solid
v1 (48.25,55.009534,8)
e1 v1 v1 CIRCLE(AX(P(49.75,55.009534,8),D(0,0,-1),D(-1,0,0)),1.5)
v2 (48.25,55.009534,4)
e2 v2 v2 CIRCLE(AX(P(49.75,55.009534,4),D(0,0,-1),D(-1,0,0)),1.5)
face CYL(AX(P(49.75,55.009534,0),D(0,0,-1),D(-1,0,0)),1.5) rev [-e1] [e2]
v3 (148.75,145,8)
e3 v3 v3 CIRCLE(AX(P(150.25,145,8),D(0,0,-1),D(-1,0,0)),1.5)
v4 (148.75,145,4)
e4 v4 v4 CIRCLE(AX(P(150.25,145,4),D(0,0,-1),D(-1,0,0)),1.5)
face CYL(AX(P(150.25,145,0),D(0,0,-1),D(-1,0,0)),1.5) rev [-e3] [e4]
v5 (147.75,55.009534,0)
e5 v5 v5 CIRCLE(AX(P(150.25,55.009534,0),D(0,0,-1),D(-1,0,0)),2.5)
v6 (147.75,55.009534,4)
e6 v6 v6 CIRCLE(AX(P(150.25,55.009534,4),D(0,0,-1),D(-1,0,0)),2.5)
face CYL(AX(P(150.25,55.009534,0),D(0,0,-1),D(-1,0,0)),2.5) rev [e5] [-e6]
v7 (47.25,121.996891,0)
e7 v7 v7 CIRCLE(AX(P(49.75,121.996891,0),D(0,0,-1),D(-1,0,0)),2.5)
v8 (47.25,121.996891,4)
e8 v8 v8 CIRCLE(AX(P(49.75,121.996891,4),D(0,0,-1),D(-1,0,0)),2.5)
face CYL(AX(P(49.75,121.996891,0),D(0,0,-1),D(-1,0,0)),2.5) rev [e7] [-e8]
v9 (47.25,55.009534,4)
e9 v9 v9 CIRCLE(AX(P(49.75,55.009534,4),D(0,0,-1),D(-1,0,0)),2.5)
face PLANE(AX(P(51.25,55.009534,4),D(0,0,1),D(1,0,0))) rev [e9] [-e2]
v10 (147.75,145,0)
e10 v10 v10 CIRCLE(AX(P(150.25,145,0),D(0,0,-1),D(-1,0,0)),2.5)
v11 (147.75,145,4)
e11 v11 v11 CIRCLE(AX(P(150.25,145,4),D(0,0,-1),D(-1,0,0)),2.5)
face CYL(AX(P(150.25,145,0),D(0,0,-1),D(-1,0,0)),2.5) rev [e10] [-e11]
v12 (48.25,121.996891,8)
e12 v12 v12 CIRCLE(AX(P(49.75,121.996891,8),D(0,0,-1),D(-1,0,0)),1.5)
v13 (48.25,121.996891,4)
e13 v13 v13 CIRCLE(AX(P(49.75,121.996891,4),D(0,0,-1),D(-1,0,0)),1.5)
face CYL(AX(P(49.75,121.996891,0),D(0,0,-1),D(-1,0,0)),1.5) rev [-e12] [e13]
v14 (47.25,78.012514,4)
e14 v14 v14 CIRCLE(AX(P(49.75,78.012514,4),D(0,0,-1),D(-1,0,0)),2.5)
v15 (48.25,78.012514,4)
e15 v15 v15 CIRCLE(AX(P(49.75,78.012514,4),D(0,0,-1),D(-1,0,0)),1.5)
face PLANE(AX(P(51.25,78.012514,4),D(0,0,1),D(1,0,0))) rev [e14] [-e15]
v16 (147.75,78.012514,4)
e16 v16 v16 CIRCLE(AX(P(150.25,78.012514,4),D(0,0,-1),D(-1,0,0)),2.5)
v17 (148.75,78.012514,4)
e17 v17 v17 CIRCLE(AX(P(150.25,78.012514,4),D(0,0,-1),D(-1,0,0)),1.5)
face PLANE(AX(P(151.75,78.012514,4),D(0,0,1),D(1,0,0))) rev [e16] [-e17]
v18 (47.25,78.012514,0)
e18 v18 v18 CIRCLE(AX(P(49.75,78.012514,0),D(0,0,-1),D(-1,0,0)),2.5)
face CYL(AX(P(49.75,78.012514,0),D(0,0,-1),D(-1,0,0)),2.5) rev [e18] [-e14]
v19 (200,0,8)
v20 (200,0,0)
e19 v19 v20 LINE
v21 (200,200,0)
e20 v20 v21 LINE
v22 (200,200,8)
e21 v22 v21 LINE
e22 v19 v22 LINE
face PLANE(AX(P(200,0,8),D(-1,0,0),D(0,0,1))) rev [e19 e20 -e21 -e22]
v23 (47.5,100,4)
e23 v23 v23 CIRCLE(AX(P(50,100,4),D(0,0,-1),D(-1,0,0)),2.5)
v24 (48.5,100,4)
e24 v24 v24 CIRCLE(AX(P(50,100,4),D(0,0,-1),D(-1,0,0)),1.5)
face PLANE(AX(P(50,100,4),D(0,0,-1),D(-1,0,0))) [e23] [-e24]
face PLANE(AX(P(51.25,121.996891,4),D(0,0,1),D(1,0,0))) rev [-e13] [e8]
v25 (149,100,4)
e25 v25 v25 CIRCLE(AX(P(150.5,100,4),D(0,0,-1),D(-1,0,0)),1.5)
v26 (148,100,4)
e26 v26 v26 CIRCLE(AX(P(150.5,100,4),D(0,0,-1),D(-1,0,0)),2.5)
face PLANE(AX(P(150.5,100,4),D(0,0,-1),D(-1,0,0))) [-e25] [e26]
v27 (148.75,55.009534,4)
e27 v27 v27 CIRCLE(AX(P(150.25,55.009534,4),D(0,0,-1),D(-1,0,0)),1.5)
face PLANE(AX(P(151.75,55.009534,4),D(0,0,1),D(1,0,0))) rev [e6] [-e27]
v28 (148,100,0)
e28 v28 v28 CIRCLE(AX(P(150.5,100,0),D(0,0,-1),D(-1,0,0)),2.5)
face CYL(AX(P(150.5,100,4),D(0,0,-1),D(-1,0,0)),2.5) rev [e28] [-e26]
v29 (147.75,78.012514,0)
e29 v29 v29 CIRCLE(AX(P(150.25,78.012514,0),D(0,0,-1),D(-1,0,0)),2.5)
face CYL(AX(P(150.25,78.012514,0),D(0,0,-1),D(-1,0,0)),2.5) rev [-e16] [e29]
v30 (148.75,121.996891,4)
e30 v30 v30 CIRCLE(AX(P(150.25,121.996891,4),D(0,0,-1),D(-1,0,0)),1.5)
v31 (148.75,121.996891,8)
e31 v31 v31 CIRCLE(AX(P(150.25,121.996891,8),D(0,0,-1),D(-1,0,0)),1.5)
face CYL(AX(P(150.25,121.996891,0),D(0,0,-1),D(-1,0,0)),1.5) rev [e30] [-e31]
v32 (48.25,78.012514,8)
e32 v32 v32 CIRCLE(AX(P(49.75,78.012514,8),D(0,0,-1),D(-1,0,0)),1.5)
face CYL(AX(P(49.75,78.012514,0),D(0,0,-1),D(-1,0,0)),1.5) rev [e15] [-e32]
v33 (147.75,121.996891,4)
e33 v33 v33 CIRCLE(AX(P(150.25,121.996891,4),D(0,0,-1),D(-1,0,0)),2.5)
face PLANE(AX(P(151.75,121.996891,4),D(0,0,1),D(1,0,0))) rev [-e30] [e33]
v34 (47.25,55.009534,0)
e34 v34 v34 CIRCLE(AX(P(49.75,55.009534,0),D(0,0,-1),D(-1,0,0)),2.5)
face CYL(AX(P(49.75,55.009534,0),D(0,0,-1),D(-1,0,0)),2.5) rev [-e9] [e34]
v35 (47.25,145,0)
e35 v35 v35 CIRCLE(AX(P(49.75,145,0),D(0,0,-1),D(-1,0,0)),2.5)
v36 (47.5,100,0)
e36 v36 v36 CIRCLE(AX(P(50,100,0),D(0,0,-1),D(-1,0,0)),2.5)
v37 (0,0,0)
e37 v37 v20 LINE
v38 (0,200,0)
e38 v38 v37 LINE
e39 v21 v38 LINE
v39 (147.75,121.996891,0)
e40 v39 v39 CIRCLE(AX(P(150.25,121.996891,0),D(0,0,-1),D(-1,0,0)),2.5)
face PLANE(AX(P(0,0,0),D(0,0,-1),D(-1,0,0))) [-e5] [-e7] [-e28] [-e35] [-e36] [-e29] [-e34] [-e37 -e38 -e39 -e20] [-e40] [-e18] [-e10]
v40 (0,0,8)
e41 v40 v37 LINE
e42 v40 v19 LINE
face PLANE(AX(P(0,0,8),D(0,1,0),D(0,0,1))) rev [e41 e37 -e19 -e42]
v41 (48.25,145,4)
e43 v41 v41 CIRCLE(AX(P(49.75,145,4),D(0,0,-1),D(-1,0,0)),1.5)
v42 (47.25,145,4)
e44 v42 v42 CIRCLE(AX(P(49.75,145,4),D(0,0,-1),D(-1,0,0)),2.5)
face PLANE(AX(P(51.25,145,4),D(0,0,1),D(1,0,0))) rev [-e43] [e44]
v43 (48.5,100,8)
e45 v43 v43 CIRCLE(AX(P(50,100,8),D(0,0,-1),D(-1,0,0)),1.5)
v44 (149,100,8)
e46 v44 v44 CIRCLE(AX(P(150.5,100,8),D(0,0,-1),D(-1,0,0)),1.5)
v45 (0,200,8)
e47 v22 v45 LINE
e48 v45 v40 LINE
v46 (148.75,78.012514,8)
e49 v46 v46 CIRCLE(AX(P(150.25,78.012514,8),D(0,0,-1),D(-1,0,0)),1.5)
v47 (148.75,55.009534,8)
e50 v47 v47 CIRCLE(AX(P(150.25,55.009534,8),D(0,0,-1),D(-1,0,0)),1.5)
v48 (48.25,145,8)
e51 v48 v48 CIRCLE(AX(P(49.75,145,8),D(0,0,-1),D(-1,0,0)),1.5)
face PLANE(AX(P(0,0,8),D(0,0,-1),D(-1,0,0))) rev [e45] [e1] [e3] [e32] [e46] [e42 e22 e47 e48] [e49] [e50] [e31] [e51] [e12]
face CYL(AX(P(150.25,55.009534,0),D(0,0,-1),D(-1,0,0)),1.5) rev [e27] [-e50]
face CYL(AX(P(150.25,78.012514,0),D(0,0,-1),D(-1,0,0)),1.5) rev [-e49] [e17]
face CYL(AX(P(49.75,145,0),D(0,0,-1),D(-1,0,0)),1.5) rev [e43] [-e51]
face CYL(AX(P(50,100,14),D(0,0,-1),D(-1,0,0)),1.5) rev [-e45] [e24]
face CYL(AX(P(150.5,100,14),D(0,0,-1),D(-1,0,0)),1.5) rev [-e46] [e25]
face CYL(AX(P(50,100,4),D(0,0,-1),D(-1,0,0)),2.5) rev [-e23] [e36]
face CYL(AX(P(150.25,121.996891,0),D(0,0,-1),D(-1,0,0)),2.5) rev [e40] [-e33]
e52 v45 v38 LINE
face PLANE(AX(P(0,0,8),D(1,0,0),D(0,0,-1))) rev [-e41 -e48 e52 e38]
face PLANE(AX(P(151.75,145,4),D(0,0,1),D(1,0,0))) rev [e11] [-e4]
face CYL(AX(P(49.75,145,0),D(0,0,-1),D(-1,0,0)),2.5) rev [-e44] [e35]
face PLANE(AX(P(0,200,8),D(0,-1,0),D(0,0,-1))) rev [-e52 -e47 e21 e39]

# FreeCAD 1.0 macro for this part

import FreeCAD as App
import Part
import Sketcher

V = App.Vector
Q = App.Units.Quantity


def add_polygon(sketch, points):
    """Adds a closed chain of lines whose ends are joined by coincident constraints."""
    first, n = sketch.GeometryCount, len(points)
    for a, b in zip(points, points[1:] + points[:1]):
        sketch.addGeometry(Part.LineSegment(App.Vector(*a, 0), App.Vector(*b, 0)), False)
    for i in range(n):
        sketch.addConstraint(Sketcher.Constraint("Coincident", first + i, 2, first + (i + 1) % n, 1))

doc = App.newDocument("Part")
params = doc.addObject("Spreadsheet::Sheet", "Params")
for row, (alias, value) in enumerate([
    ("sketch1_width", "200 mm"),
    ("pad1_length", "8 mm"),
    ("sketch2_width", "1 mm"),
    ("sketch2_height", "4 mm"),
    ("sketch2_width2", "2.5 mm"),
    ("groove_angle", "360 deg"),
    ("linearpattern_pitch", "89.990466 mm"),
    ("linearpattern2_pitch", "89.990466 mm"),
    ("linearpattern3_pitch", "66.987357 mm"),
    ("linearpattern4_pitch", "23.00298 mm"),
    ("sketch3_diameter", "5 mm"),
    ("pocket1_length", "4 mm"),
    ("sketch4_diameter", "3 mm"),
    ("pocket2_length", "10 mm"),
    ("linearpattern5_pitch", "100.5 mm"),
    ("sketch5_width", "1 mm"),
    ("sketch5_height", "4 mm"),
    ("sketch5_width2", "2.5 mm"),
    ("groove2_angle", "360 deg"),
    ("sketch6_width", "1 mm"),
    ("sketch6_height", "4 mm"),
    ("sketch6_width2", "2.5 mm"),
    ("groove3_angle", "360 deg"),
    ("sketch7_width", "1 mm"),
    ("sketch7_height", "4 mm"),
    ("sketch7_width2", "2.5 mm"),
    ("groove4_angle", "360 deg"),
    ("sketch8_width", "1 mm"),
    ("sketch8_height", "4 mm"),
    ("sketch8_width2", "2.5 mm"),
    ("groove5_angle", "360 deg"),
], start=1):
    params.set(f"A{row}", alias)
    params.set(f"B{row}", "=" + value)
    params.setAlias(f"B{row}", alias)

body = doc.addObject("PartDesign::Body", "Body")

sketch1 = body.newObject("Sketcher::SketchObject", "Sketch")
sketch1.AttachmentSupport = (doc.getObject("XY_Plane"), [""])
sketch1.MapMode = "FlatFace"
add_polygon(sketch1, [(0, 200), (0, 0), (200, 0), (200, 200)])
sketch1.addConstraint(Sketcher.Constraint("Vertical", 0))
sketch1.addConstraint(Sketcher.Constraint("Horizontal", 1))
sketch1.addConstraint(Sketcher.Constraint("Vertical", 2))
sketch1.addConstraint(Sketcher.Constraint("Horizontal", 3))
sketch1.addConstraint(Sketcher.Constraint("Coincident", 0, 2, -1, 1))
sketch1.addConstraint(Sketcher.Constraint("Equal", 3, 0))
sketch1.addConstraint(Sketcher.Constraint("DistanceX", 1, 1, 1, 2, 200.0))
sketch1.setExpression("Constraints[10]", "Params.sketch1_width")
pad1 = body.newObject("PartDesign::Pad", "Pad")
pad1.Profile = sketch1
pad1.setExpression("Length", "Params.pad1_length")

sketch2 = body.newObject("Sketcher::SketchObject", "Sketch001")
sketch2.AttachmentSupport = (doc.getObject("YZ_Plane"), [""])
sketch2.MapMode = "FlatFace"
sketch2.AttachmentOffset = App.Placement(V(0, 0, 49.75), App.Rotation())
add_polygon(sketch2, [(55, 8.9), (55, 0), (57.5, 0), (57.5, 4), (56.5, 4), (56.5, 8)])
sketch2.addGeometry(Part.LineSegment(V(55, 0, 0), V(55, 8.9, 0)), True)
sketch2.addConstraint(Sketcher.Constraint("Vertical", 0))
sketch2.addConstraint(Sketcher.Constraint("Horizontal", 1))
sketch2.addConstraint(Sketcher.Constraint("Vertical", 2))
sketch2.addConstraint(Sketcher.Constraint("Horizontal", 3))
sketch2.addConstraint(Sketcher.Constraint("Vertical", 4))
sketch2.addConstraint(Sketcher.Constraint("Vertical", 6))
sketch2.addConstraint(Sketcher.Constraint("Coincident", 6, 1, 0, 2))
sketch2.addConstraint(Sketcher.Constraint("PointOnObject", 0, 2, -1))
sketch2.addConstraint(Sketcher.Constraint("Equal", 2, 4))
sketch2.addConstraint(Sketcher.Constraint("Equal", 0, 6))
sketch2.addConstraint(Sketcher.Constraint("DistanceX", 3, 2, 3, 1, 1.0))
sketch2.addConstraint(Sketcher.Constraint("DistanceY", 2, 1, 2, 2, 4.0))
sketch2.addConstraint(Sketcher.Constraint("Angle", 5, Q("149 deg")))
sketch2.addConstraint(Sketcher.Constraint("DistanceX", 1, 1, 1, 2, 2.5))
sketch2.addConstraint(Sketcher.Constraint("DistanceX", -1, 1, 0, 2, 55.009534))
sketch2.setExpression("Constraints[16]", "Params.sketch2_width")
sketch2.setExpression("Constraints[17]", "Params.sketch2_height")
sketch2.setExpression("Constraints[19]", "Params.sketch2_width2")
groove = body.newObject("PartDesign::Groove", "Groove")
groove.Profile = sketch2
groove.ReferenceAxis = (sketch2, ["Axis0"])
groove.setExpression("Angle", "Params.groove_angle")
doc.recompute()

linearpattern = body.newObject("PartDesign::LinearPattern", "LinearPattern")
linearpattern.Originals = [groove]
linearpattern.Direction = (doc.getObject("Y_Axis"), [""])
linearpattern.Mode = "offset"
linearpattern.setExpression("Offset", "Params.linearpattern_pitch")
linearpattern.Occurrences = 2
body.Tip = linearpattern
doc.recompute()

linearpattern2 = body.newObject("PartDesign::LinearPattern", "LinearPattern001")
linearpattern2.Originals = [groove]
linearpattern2.Direction = (doc.getObject("Y_Axis"), [""])
linearpattern2.Mode = "offset"
linearpattern2.setExpression("Offset", "Params.linearpattern2_pitch")
linearpattern2.Occurrences = 2
body.Tip = linearpattern2
doc.recompute()

linearpattern3 = body.newObject("PartDesign::LinearPattern", "LinearPattern002")
linearpattern3.Originals = [groove]
linearpattern3.Direction = (doc.getObject("Y_Axis"), [""])
linearpattern3.Mode = "offset"
linearpattern3.setExpression("Offset", "Params.linearpattern3_pitch")
linearpattern3.Occurrences = 2
body.Tip = linearpattern3
doc.recompute()

linearpattern4 = body.newObject("PartDesign::LinearPattern", "LinearPattern003")
linearpattern4.Originals = [groove]
linearpattern4.Direction = (doc.getObject("Y_Axis"), [""])
linearpattern4.Mode = "offset"
linearpattern4.setExpression("Offset", "Params.linearpattern4_pitch")
linearpattern4.Occurrences = 2
body.Tip = linearpattern4

sketch3 = body.newObject("Sketcher::SketchObject", "Sketch002")
sketch3.AttachmentSupport = (doc.getObject("XY_Plane"), [""])
sketch3.MapMode = "FlatFace"
sketch3.addGeometry(Part.Circle(V(50, 100, 0), V(0, 0, 1), 2.5), False)
sketch3.addConstraint(Sketcher.Constraint("Diameter", 0, 5.0))
sketch3.addConstraint(Sketcher.Constraint("DistanceX", -1, 1, 0, 3, 50.0))
sketch3.addConstraint(Sketcher.Constraint("DistanceY", -1, 1, 0, 3, 100.0))
sketch3.setExpression("Constraints[0]", "Params.sketch3_diameter")
pocket1 = body.newObject("PartDesign::Pocket", "Pocket")
pocket1.Profile = sketch3
pocket1.setExpression("Length", "Params.pocket1_length")
pocket1.Reversed = True

sketch4 = body.newObject("Sketcher::SketchObject", "Sketch003")
sketch4.AttachmentSupport = (doc.getObject("XY_Plane"), [""])
sketch4.MapMode = "FlatFace"
sketch4.AttachmentOffset = App.Placement(V(0, 0, 4), App.Rotation())
sketch4.addGeometry(Part.Circle(V(50, 100, 0), V(0, 0, 1), 1.5), False)
sketch4.addConstraint(Sketcher.Constraint("Diameter", 0, 3.0))
sketch4.addConstraint(Sketcher.Constraint("DistanceX", -1, 1, 0, 3, 50.0))
sketch4.addConstraint(Sketcher.Constraint("DistanceY", -1, 1, 0, 3, 100.0))
sketch4.setExpression("Constraints[0]", "Params.sketch4_diameter")
pocket2 = body.newObject("PartDesign::Pocket", "Pocket001")
pocket2.Profile = sketch4
pocket2.setExpression("Length", "Params.pocket2_length")
pocket2.Reversed = True
doc.recompute()

linearpattern5 = body.newObject("PartDesign::LinearPattern", "LinearPattern004")
linearpattern5.Originals = [groove, pocket1, pocket2]
linearpattern5.Direction = (doc.getObject("X_Axis"), [""])
linearpattern5.Mode = "offset"
linearpattern5.setExpression("Offset", "Params.linearpattern5_pitch")
linearpattern5.Occurrences = 2
body.Tip = linearpattern5

sketch5 = body.newObject("Sketcher::SketchObject", "Sketch004")
sketch5.AttachmentSupport = (doc.getObject("YZ_Plane"), [""])
sketch5.MapMode = "FlatFace"
sketch5.AttachmentOffset = App.Placement(V(0, 0, 150.25), App.Rotation())
add_polygon(sketch5, [(145, 8.9), (145, 0), (147.5, 0), (147.5, 4), (146.5, 4), (146.5, 8)])
sketch5.addGeometry(Part.LineSegment(V(145, 0, 0), V(145, 8.9, 0)), True)
sketch5.addConstraint(Sketcher.Constraint("Vertical", 0))
sketch5.addConstraint(Sketcher.Constraint("Horizontal", 1))
sketch5.addConstraint(Sketcher.Constraint("Vertical", 2))
sketch5.addConstraint(Sketcher.Constraint("Horizontal", 3))
sketch5.addConstraint(Sketcher.Constraint("Vertical", 4))
sketch5.addConstraint(Sketcher.Constraint("Vertical", 6))
sketch5.addConstraint(Sketcher.Constraint("Coincident", 6, 1, 0, 2))
sketch5.addConstraint(Sketcher.Constraint("PointOnObject", 0, 2, -1))
sketch5.addConstraint(Sketcher.Constraint("Equal", 2, 4))
sketch5.addConstraint(Sketcher.Constraint("Equal", 0, 6))
sketch5.addConstraint(Sketcher.Constraint("DistanceX", 3, 2, 3, 1, 1.0))
sketch5.addConstraint(Sketcher.Constraint("DistanceY", 2, 1, 2, 2, 4.0))
sketch5.addConstraint(Sketcher.Constraint("Angle", 5, Q("149 deg")))
sketch5.addConstraint(Sketcher.Constraint("DistanceX", 1, 1, 1, 2, 2.5))
sketch5.addConstraint(Sketcher.Constraint("DistanceX", -1, 1, 0, 2, 145.0))
sketch5.setExpression("Constraints[16]", "Params.sketch5_width")
sketch5.setExpression("Constraints[17]", "Params.sketch5_height")
sketch5.setExpression("Constraints[19]", "Params.sketch5_width2")
groove2 = body.newObject("PartDesign::Groove", "Groove001")
groove2.Profile = sketch5
groove2.ReferenceAxis = (sketch5, ["Axis0"])
groove2.setExpression("Angle", "Params.groove2_angle")

sketch6 = body.newObject("Sketcher::SketchObject", "Sketch005")
sketch6.AttachmentSupport = (doc.getObject("YZ_Plane"), [""])
sketch6.MapMode = "FlatFace"
sketch6.AttachmentOffset = App.Placement(V(0, 0, 150.25), App.Rotation())
add_polygon(sketch6, [(145, 8.9), (145, 0), (147.5, 0), (147.5, 4), (146.5, 4), (146.5, 8)])
sketch6.addGeometry(Part.LineSegment(V(145, 0, 0), V(145, 8.9, 0)), True)
sketch6.addConstraint(Sketcher.Constraint("Vertical", 0))
sketch6.addConstraint(Sketcher.Constraint("Horizontal", 1))
sketch6.addConstraint(Sketcher.Constraint("Vertical", 2))
sketch6.addConstraint(Sketcher.Constraint("Horizontal", 3))
sketch6.addConstraint(Sketcher.Constraint("Vertical", 4))
sketch6.addConstraint(Sketcher.Constraint("Vertical", 6))
sketch6.addConstraint(Sketcher.Constraint("Coincident", 6, 1, 0, 2))
sketch6.addConstraint(Sketcher.Constraint("PointOnObject", 0, 2, -1))
sketch6.addConstraint(Sketcher.Constraint("Equal", 2, 4))
sketch6.addConstraint(Sketcher.Constraint("Equal", 0, 6))
sketch6.addConstraint(Sketcher.Constraint("DistanceX", 3, 2, 3, 1, 1.0))
sketch6.addConstraint(Sketcher.Constraint("DistanceY", 2, 1, 2, 2, 4.0))
sketch6.addConstraint(Sketcher.Constraint("Angle", 5, Q("149 deg")))
sketch6.addConstraint(Sketcher.Constraint("DistanceX", 1, 1, 1, 2, 2.5))
sketch6.addConstraint(Sketcher.Constraint("DistanceX", -1, 1, 0, 2, 145.0))
sketch6.setExpression("Constraints[16]", "Params.sketch6_width")
sketch6.setExpression("Constraints[17]", "Params.sketch6_height")
sketch6.setExpression("Constraints[19]", "Params.sketch6_width2")
groove3 = body.newObject("PartDesign::Groove", "Groove002")
groove3.Profile = sketch6
groove3.ReferenceAxis = (sketch6, ["Axis0"])
groove3.setExpression("Angle", "Params.groove3_angle")

sketch7 = body.newObject("Sketcher::SketchObject", "Sketch006")
sketch7.AttachmentSupport = (doc.getObject("YZ_Plane"), [""])
sketch7.MapMode = "FlatFace"
sketch7.AttachmentOffset = App.Placement(V(0, 0, 150.25), App.Rotation())
add_polygon(sketch7, [(122, 8.9), (122, 0), (124.5, 0), (124.5, 4), (123.5, 4), (123.5, 8)])
sketch7.addGeometry(Part.LineSegment(V(122, 0, 0), V(122, 8.9, 0)), True)
sketch7.addConstraint(Sketcher.Constraint("Vertical", 0))
sketch7.addConstraint(Sketcher.Constraint("Horizontal", 1))
sketch7.addConstraint(Sketcher.Constraint("Vertical", 2))
sketch7.addConstraint(Sketcher.Constraint("Horizontal", 3))
sketch7.addConstraint(Sketcher.Constraint("Vertical", 4))
sketch7.addConstraint(Sketcher.Constraint("Vertical", 6))
sketch7.addConstraint(Sketcher.Constraint("Coincident", 6, 1, 0, 2))
sketch7.addConstraint(Sketcher.Constraint("PointOnObject", 0, 2, -1))
sketch7.addConstraint(Sketcher.Constraint("Equal", 2, 4))
sketch7.addConstraint(Sketcher.Constraint("Equal", 0, 6))
sketch7.addConstraint(Sketcher.Constraint("DistanceX", 3, 2, 3, 1, 1.0))
sketch7.addConstraint(Sketcher.Constraint("DistanceY", 2, 1, 2, 2, 4.0))
sketch7.addConstraint(Sketcher.Constraint("Angle", 5, Q("149 deg")))
sketch7.addConstraint(Sketcher.Constraint("DistanceX", 1, 1, 1, 2, 2.5))
sketch7.addConstraint(Sketcher.Constraint("DistanceX", -1, 1, 0, 2, 121.996891))
sketch7.setExpression("Constraints[16]", "Params.sketch7_width")
sketch7.setExpression("Constraints[17]", "Params.sketch7_height")
sketch7.setExpression("Constraints[19]", "Params.sketch7_width2")
groove4 = body.newObject("PartDesign::Groove", "Groove003")
groove4.Profile = sketch7
groove4.ReferenceAxis = (sketch7, ["Axis0"])
groove4.setExpression("Angle", "Params.groove4_angle")

sketch8 = body.newObject("Sketcher::SketchObject", "Sketch007")
sketch8.AttachmentSupport = (doc.getObject("YZ_Plane"), [""])
sketch8.MapMode = "FlatFace"
sketch8.AttachmentOffset = App.Placement(V(0, 0, 150.25), App.Rotation())
add_polygon(sketch8, [(78, 8.9), (78, 0), (80.5, 0), (80.5, 4), (79.5, 4), (79.5, 8)])
sketch8.addGeometry(Part.LineSegment(V(78, 0, 0), V(78, 8.9, 0)), True)
sketch8.addConstraint(Sketcher.Constraint("Vertical", 0))
sketch8.addConstraint(Sketcher.Constraint("Horizontal", 1))
sketch8.addConstraint(Sketcher.Constraint("Vertical", 2))
sketch8.addConstraint(Sketcher.Constraint("Horizontal", 3))
sketch8.addConstraint(Sketcher.Constraint("Vertical", 4))
sketch8.addConstraint(Sketcher.Constraint("Vertical", 6))
sketch8.addConstraint(Sketcher.Constraint("Coincident", 6, 1, 0, 2))
sketch8.addConstraint(Sketcher.Constraint("PointOnObject", 0, 2, -1))
sketch8.addConstraint(Sketcher.Constraint("Equal", 2, 4))
sketch8.addConstraint(Sketcher.Constraint("Equal", 0, 6))
sketch8.addConstraint(Sketcher.Constraint("DistanceX", 3, 2, 3, 1, 1.0))
sketch8.addConstraint(Sketcher.Constraint("DistanceY", 2, 1, 2, 2, 4.0))
sketch8.addConstraint(Sketcher.Constraint("Angle", 5, Q("149 deg")))
sketch8.addConstraint(Sketcher.Constraint("DistanceX", 1, 1, 1, 2, 2.5))
sketch8.addConstraint(Sketcher.Constraint("DistanceX", -1, 1, 0, 2, 78.012514))
sketch8.setExpression("Constraints[16]", "Params.sketch8_width")
sketch8.setExpression("Constraints[17]", "Params.sketch8_height")
sketch8.setExpression("Constraints[19]", "Params.sketch8_width2")
groove5 = body.newObject("PartDesign::Groove", "Groove004")
groove5.Profile = sketch8
groove5.ReferenceAxis = (sketch8, ["Axis0"])
groove5.setExpression("Angle", "Params.groove5_angle")

doc.recompute()
